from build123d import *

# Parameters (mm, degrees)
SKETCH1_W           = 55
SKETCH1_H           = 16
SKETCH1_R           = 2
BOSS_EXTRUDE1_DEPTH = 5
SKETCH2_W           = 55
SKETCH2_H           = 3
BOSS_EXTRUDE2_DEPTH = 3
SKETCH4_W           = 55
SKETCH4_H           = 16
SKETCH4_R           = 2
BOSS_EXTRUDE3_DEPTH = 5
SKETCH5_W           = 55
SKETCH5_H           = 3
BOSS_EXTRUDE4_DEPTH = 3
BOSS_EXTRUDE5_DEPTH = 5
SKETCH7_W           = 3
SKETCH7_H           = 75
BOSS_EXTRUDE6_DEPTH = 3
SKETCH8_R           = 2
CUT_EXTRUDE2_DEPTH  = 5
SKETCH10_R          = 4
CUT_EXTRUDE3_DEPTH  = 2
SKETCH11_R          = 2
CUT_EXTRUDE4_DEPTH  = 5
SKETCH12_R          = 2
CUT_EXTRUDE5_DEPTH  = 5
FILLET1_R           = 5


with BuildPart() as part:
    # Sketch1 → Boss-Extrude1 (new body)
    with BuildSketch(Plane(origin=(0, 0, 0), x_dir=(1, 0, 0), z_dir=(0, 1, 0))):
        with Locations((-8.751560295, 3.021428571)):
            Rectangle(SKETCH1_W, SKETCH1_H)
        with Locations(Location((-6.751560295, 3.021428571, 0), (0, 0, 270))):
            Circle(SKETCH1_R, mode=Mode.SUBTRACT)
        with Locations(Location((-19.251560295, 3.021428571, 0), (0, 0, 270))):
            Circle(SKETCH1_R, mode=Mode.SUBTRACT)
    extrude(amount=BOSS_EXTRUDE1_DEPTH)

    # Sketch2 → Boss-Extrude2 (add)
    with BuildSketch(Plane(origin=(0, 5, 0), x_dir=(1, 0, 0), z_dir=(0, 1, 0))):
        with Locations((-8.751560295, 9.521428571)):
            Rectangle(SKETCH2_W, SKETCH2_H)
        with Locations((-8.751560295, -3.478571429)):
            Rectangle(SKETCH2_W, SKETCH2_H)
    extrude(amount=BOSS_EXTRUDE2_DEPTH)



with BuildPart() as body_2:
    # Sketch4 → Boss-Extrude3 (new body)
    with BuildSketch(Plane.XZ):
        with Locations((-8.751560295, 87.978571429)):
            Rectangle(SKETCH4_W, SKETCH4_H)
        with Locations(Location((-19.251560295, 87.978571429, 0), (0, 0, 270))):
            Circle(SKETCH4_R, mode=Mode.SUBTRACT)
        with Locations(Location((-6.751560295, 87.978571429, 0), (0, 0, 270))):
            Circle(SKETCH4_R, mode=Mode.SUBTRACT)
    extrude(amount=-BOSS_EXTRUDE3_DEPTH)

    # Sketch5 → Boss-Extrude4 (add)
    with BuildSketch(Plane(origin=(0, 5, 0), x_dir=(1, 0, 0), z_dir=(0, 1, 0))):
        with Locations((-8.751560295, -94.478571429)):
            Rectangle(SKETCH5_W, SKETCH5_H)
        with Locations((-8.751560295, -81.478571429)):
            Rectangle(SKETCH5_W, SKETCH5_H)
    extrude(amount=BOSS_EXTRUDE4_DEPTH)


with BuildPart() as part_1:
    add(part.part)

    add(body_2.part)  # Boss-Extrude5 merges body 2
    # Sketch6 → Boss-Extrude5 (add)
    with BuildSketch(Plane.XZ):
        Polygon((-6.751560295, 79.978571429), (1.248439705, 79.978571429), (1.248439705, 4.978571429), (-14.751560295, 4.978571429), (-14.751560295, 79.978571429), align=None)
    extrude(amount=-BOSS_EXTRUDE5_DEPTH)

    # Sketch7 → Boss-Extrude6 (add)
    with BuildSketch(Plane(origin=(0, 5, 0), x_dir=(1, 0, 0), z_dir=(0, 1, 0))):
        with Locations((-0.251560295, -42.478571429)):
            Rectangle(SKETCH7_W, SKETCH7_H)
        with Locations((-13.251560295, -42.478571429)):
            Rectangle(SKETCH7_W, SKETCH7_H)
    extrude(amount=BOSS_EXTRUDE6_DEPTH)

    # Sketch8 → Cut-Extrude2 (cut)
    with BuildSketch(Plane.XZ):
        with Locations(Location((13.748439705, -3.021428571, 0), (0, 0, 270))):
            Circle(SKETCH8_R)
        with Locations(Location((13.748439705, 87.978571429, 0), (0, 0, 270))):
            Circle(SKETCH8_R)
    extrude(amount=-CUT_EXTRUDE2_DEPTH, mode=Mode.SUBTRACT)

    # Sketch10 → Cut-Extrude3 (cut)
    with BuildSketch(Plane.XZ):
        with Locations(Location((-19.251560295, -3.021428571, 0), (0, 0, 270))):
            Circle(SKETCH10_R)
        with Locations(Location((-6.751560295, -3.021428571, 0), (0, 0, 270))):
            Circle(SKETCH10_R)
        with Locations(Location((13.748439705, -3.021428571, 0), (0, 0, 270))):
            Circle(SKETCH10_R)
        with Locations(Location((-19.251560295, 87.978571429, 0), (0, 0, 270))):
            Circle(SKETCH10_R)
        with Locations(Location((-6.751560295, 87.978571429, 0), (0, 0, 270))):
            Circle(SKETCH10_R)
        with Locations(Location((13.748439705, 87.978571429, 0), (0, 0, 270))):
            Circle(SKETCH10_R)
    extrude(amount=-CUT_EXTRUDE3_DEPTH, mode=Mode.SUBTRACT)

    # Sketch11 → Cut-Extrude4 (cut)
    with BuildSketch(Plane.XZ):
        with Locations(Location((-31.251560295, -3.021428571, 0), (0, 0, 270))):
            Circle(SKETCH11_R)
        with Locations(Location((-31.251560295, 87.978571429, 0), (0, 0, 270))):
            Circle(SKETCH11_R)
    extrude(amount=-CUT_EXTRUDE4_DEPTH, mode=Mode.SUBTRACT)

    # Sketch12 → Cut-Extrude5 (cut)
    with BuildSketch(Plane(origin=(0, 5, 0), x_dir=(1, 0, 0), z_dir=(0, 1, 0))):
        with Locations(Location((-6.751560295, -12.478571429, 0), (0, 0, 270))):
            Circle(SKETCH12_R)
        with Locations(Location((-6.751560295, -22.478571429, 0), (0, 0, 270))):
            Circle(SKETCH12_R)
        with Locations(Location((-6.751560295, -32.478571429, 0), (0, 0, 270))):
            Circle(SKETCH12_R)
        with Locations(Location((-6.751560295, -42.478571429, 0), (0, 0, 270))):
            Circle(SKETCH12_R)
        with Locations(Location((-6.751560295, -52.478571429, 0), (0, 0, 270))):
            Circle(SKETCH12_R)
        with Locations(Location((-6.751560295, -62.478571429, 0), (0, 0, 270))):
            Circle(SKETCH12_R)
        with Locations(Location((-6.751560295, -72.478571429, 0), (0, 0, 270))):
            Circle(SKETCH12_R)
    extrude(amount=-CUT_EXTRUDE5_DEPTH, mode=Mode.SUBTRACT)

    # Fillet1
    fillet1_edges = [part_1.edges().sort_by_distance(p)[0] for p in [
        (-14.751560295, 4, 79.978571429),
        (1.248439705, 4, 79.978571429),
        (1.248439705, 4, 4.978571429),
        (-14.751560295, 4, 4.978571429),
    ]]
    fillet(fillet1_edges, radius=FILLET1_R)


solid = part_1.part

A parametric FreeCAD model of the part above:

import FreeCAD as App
import Part
import Sketcher

V = App.Vector
Q = App.Units.Quantity


def edges_at(feature, points):
    """Names of the edges that pass closest to the given points."""
    edges = feature.Shape.Edges
    near = lambda p: min(range(len(edges)), key=lambda i: edges[i].distToShape(Part.Vertex(*p))[0])
    return sorted({f"Edge{near(p) + 1}" for p in points})


def add_polygon(sketch, points):
    """Adds a closed chain of lines whose ends are joined by coincident constraints."""
    first, n = sketch.GeometryCount, len(points)
    for a, b in zip(points, points[1:] + points[:1]):
        sketch.addGeometry(Part.LineSegment(App.Vector(*a, 0), App.Vector(*b, 0)), False)
    for i in range(n):
        sketch.addConstraint(Sketcher.Constraint("Coincident", first + i, 2, first + (i + 1) % n, 1))

doc = App.newDocument("Part")
body = doc.addObject("PartDesign::Body", "Body")

# Sketch on XZ plane
sketch1 = body.newObject("Sketcher::SketchObject", "Sketch")
sketch1.AttachmentSupport = (doc.getObject("XZ_Plane"), [""])
sketch1.MapMode = "FlatFace"
add_polygon(sketch1, [(-36.25156, -11.021429), (-36.25156, 4.978571), (18.74844, 4.978571), (18.74844, -11.021429)])  # lines 0-3
sketch1.addGeometry(Part.Circle(V(-19.25156, -3.021429, 0), V(0, 0, 1), 2), False)  # 4
sketch1.addGeometry(Part.Circle(V(-6.75156, -3.021429, 0), V(0, 0, 1), 2), False)  # 5
sketch1.addConstraint([
    Sketcher.Constraint("Vertical", 0),
    Sketcher.Constraint("Horizontal", 1),
    Sketcher.Constraint("Vertical", 2),
    Sketcher.Constraint("Horizontal", 3),
    Sketcher.Constraint("Equal", 4, 5),
    Sketcher.Constraint("Horizontal", 4, 3, 5, 3),
    Sketcher.Constraint("Diameter", 4, Q("4 mm")),
    Sketcher.Constraint("DistanceX", 1, 1, 1, 2, Q("55 mm")),
    Sketcher.Constraint("DistanceY", 0, 1, 0, 2, Q("16 mm")),
    Sketcher.Constraint("DistanceX", 0, 2, 4, 3, Q("17 mm")),
    Sketcher.Constraint("DistanceY", 4, 3, 0, 2, Q("8 mm")),
    Sketcher.Constraint("DistanceX", 4, 3, 5, 3, Q("12.5 mm")),
    Sketcher.Constraint("DistanceX", 4, 3, -1, 1, Q("19.25156 mm")),
    Sketcher.Constraint("DistanceY", 4, 3, -1, 1, Q("3.021429 mm")),
])
pad1 = body.newObject("PartDesign::Pad", "Pad")
pad1.Profile = sketch1
pad1.Length = 5
pad1.Reversed = True

# Sketch on XZ plane
sketch2 = body.newObject("Sketcher::SketchObject", "Sketch001")
sketch2.AttachmentSupport = (doc.getObject("XZ_Plane"), [""])
sketch2.MapMode = "FlatFace"
sketch2.AttachmentOffset = App.Placement(V(0, 0, -5), App.Rotation())
add_polygon(sketch2, [(-36.25156, -11.021429), (-36.25156, -8.021429), (18.74844, -8.021429), (18.74844, -11.021429)])  # lines 0-3
add_polygon(sketch2, [(-36.25156, 1.978571), (-36.25156, 4.978571), (18.74844, 4.978571), (18.74844, 1.978571)])  # lines 4-7
sketch2.addConstraint([
    Sketcher.Constraint("Vertical", 0),
    Sketcher.Constraint("Horizontal", 1),
    Sketcher.Constraint("Vertical", 2),
    Sketcher.Constraint("Horizontal", 3),
    Sketcher.Constraint("Vertical", 4),
    Sketcher.Constraint("Horizontal", 5),
    Sketcher.Constraint("Vertical", 6),
    Sketcher.Constraint("Horizontal", 7),
    Sketcher.Constraint("Vertical", 3, 2, 4, 2),
    Sketcher.Constraint("Vertical", 2, 2, 5, 2),
    Sketcher.Constraint("Equal", 2, 4),
    Sketcher.Constraint("DistanceX", 1, 1, 1, 2, Q("55 mm")),
    Sketcher.Constraint("DistanceY", 0, 1, 0, 2, Q("3 mm")),
    Sketcher.Constraint("DistanceY", 0, 2, 4, 2, Q("13 mm")),
    Sketcher.Constraint("DistanceX", 0, 2, -1, 1, Q("36.25156 mm")),
    Sketcher.Constraint("DistanceY", 0, 2, -1, 1, Q("8.021429 mm")),
])
pad2 = body.newObject("PartDesign::Pad", "Pad001")
pad2.Profile = sketch2
pad2.Length = 3
pad2.Reversed = True
body2 = doc.addObject("PartDesign::Body", "Body001")

# Sketch on XZ plane
sketch3 = body2.newObject("Sketcher::SketchObject", "Sketch002")
sketch3.AttachmentSupport = (doc.getObject("XZ_Plane001"), [""])
sketch3.MapMode = "FlatFace"
add_polygon(sketch3, [(-36.25156, 95.978571), (-36.25156, 79.978571), (18.74844, 79.978571), (18.74844, 95.978571)])  # lines 0-3
sketch3.addGeometry(Part.Circle(V(-19.25156, 87.978571, 0), V(0, 0, 1), 2), False)  # 4
sketch3.addGeometry(Part.Circle(V(-6.75156, 87.978571, 0), V(0, 0, 1), 2), False)  # 5
sketch3.addConstraint([
    Sketcher.Constraint("Vertical", 0),
    Sketcher.Constraint("Horizontal", 1),
    Sketcher.Constraint("Vertical", 2),
    Sketcher.Constraint("Horizontal", 3),
    Sketcher.Constraint("Equal", 4, 5),
    Sketcher.Constraint("Horizontal", 4, 3, 5, 3),
    Sketcher.Constraint("Diameter", 4, Q("4 mm")),
    Sketcher.Constraint("DistanceX", 1, 1, 1, 2, Q("55 mm")),
    Sketcher.Constraint("DistanceY", 0, 2, 0, 1, Q("16 mm")),
    Sketcher.Constraint("DistanceX", 0, 2, 4, 3, Q("17 mm")),
    Sketcher.Constraint("DistanceY", 0, 2, 4, 3, Q("8 mm")),
    Sketcher.Constraint("DistanceX", 4, 3, 5, 3, Q("12.5 mm")),
    Sketcher.Constraint("DistanceX", 4, 3, -1, 1, Q("19.25156 mm")),
    Sketcher.Constraint("DistanceY", -1, 1, 4, 3, Q("87.978571 mm")),
])
pad3 = body2.newObject("PartDesign::Pad", "Pad002")
pad3.Profile = sketch3
pad3.Length = 5
pad3.Reversed = True

# Sketch on XZ plane
sketch4 = body2.newObject("Sketcher::SketchObject", "Sketch003")
sketch4.AttachmentSupport = (doc.getObject("XZ_Plane001"), [""])
sketch4.MapMode = "FlatFace"
sketch4.AttachmentOffset = App.Placement(V(0, 0, -5), App.Rotation())
add_polygon(sketch4, [(-36.25156, 92.978571), (-36.25156, 95.978571), (18.74844, 95.978571), (18.74844, 92.978571)])  # lines 0-3
add_polygon(sketch4, [(-36.25156, 79.978571), (-36.25156, 82.978571), (18.74844, 82.978571), (18.74844, 79.978571)])  # lines 4-7
sketch4.addConstraint([
    Sketcher.Constraint("Vertical", 0),
    Sketcher.Constraint("Horizontal", 1),
    Sketcher.Constraint("Vertical", 2),
    Sketcher.Constraint("Horizontal", 3),
    Sketcher.Constraint("Vertical", 4),
    Sketcher.Constraint("Horizontal", 5),
    Sketcher.Constraint("Vertical", 6),
    Sketcher.Constraint("Horizontal", 7),
    Sketcher.Constraint("Vertical", 3, 2, 4, 2),
    Sketcher.Constraint("Vertical", 2, 2, 5, 2),
    Sketcher.Constraint("Equal", 2, 4),
    Sketcher.Constraint("DistanceX", 1, 1, 1, 2, Q("55 mm")),
    Sketcher.Constraint("DistanceY", 0, 1, 0, 2, Q("3 mm")),
    Sketcher.Constraint("DistanceY", 4, 2, 3, 2, Q("10 mm")),
    Sketcher.Constraint("DistanceX", 0, 2, -1, 1, Q("36.25156 mm")),
    Sketcher.Constraint("DistanceY", -1, 1, 0, 2, Q("95.978571 mm")),
])
pad4 = body2.newObject("PartDesign::Pad", "Pad003")
pad4.Profile = sketch4
pad4.Length = 3
pad4.Reversed = True
body.AllowCompound = True
doc.recompute()

boolean = body.newObject("PartDesign::Boolean", "Boolean")
boolean.Type = "Fuse"
boolean.addObjects([body2])

# Sketch on XZ plane
sketch5 = body.newObject("Sketcher::SketchObject", "Sketch004")
sketch5.AttachmentSupport = (doc.getObject("XZ_Plane"), [""])
sketch5.MapMode = "FlatFace"
add_polygon(sketch5, [(1.24844, 79.978571), (-14.75156, 79.978571), (-14.75156, 4.978571), (1.24844, 4.978571)])  # lines 0-3
sketch5.addConstraint([
    Sketcher.Constraint("Horizontal", 0),
    Sketcher.Constraint("Vertical", 1),
    Sketcher.Constraint("Horizontal", 2),
    Sketcher.Constraint("Vertical", 3),
    Sketcher.Constraint("DistanceX", 0, 2, 0, 1, Q("16 mm")),
    Sketcher.Constraint("DistanceY", 1, 2, 1, 1, Q("75 mm")),
    Sketcher.Constraint("DistanceX", 0, 2, -1, 1, Q("14.75156 mm")),
    Sketcher.Constraint("DistanceY", -1, 1, 0, 2, Q("79.978571 mm")),
])
pad5 = body.newObject("PartDesign::Pad", "Pad004")
pad5.Profile = sketch5
pad5.Length = 5
pad5.Reversed = True

# Sketch on XZ plane
sketch6 = body.newObject("Sketcher::SketchObject", "Sketch005")
sketch6.AttachmentSupport = (doc.getObject("XZ_Plane"), [""])
sketch6.MapMode = "FlatFace"
sketch6.AttachmentOffset = App.Placement(V(0, 0, -5), App.Rotation())
add_polygon(sketch6, [(-1.75156, 4.978571), (-1.75156, 79.978571), (1.24844, 79.978571), (1.24844, 4.978571)])  # lines 0-3
add_polygon(sketch6, [(-14.75156, 4.978571), (-14.75156, 79.978571), (-11.75156, 79.978571), (-11.75156, 4.978571)])  # lines 4-7
sketch6.addConstraint([
    Sketcher.Constraint("Vertical", 0),
    Sketcher.Constraint("Horizontal", 1),
    Sketcher.Constraint("Vertical", 2),
    Sketcher.Constraint("Horizontal", 3),
    Sketcher.Constraint("Vertical", 4),
    Sketcher.Constraint("Horizontal", 5),
    Sketcher.Constraint("Vertical", 6),
    Sketcher.Constraint("Horizontal", 7),
    Sketcher.Constraint("Horizontal", 1, 2, 4, 2),
    Sketcher.Constraint("Horizontal", 3, 2, 6, 2),
    Sketcher.Constraint("Equal", 3, 5),
    Sketcher.Constraint("DistanceX", 1, 1, 1, 2, Q("3 mm")),
    Sketcher.Constraint("DistanceY", 0, 1, 0, 2, Q("75 mm")),
    Sketcher.Constraint("DistanceX", 4, 2, 0, 2, Q("13 mm")),
    Sketcher.Constraint("DistanceX", 0, 2, -1, 1, Q("1.75156 mm")),
    Sketcher.Constraint("DistanceY", -1, 1, 0, 2, Q("79.978571 mm")),
])
pad6 = body.newObject("PartDesign::Pad", "Pad005")
pad6.Profile = sketch6
pad6.Length = 3
pad6.Reversed = True

# Sketch on XZ plane
sketch7 = body.newObject("Sketcher::SketchObject", "Sketch006")
sketch7.AttachmentSupport = (doc.getObject("XZ_Plane"), [""])
sketch7.MapMode = "FlatFace"
sketch7.addGeometry([
    Part.Circle(V(13.74844, -3.021429, 0), V(0, 0, 1), 2),
    Part.Circle(V(13.74844, 87.978571, 0), V(0, 0, 1), 2),
], False)
sketch7.addConstraint([
    Sketcher.Constraint("Equal", 0, 1),
    Sketcher.Constraint("Vertical", 0, 3, 1, 3),
    Sketcher.Constraint("Diameter", 0, Q("4 mm")),
    Sketcher.Constraint("DistanceY", 0, 3, 1, 3, Q("91 mm")),
    Sketcher.Constraint("DistanceX", -1, 1, 0, 3, Q("13.74844 mm")),
    Sketcher.Constraint("DistanceY", 0, 3, -1, 1, Q("3.021429 mm")),
])
pocket1 = body.newObject("PartDesign::Pocket", "Pocket")
pocket1.Profile = sketch7
pocket1.Length = 5

# Sketch on XZ plane
sketch8 = body.newObject("Sketcher::SketchObject", "Sketch007")
sketch8.AttachmentSupport = (doc.getObject("XZ_Plane"), [""])
sketch8.MapMode = "FlatFace"
sketch8.addGeometry([
    Part.Circle(V(-19.25156, -3.021429, 0), V(0, 0, 1), 4),  # 0
    Part.Circle(V(-6.75156, -3.021429, 0), V(0, 0, 1), 4),  # 1
    Part.Circle(V(13.74844, -3.021429, 0), V(0, 0, 1), 4),  # 2
    Part.Circle(V(-19.25156, 87.978571, 0), V(0, 0, 1), 4),  # 3
    Part.Circle(V(-6.75156, 87.978571, 0), V(0, 0, 1), 4),  # 4
    Part.Circle(V(13.74844, 87.978571, 0), V(0, 0, 1), 4),  # 5
], False)
sketch8.addConstraint([
    Sketcher.Constraint("Equal", 0, 1),
    Sketcher.Constraint("Equal", 1, 2),
    Sketcher.Constraint("Equal", 2, 3),
    Sketcher.Constraint("Equal", 3, 4),
    Sketcher.Constraint("Equal", 4, 5),
    Sketcher.Constraint("Horizontal", 0, 3, 1, 3),
    Sketcher.Constraint("Horizontal", 1, 3, 2, 3),
    Sketcher.Constraint("Horizontal", 3, 3, 4, 3),
    Sketcher.Constraint("Horizontal", 4, 3, 5, 3),
    Sketcher.Constraint("Vertical", 0, 3, 3, 3),
    Sketcher.Constraint("Vertical", 1, 3, 4, 3),
    Sketcher.Constraint("Vertical", 2, 3, 5, 3),
    Sketcher.Constraint("Diameter", 0, Q("8 mm")),
    Sketcher.Constraint("DistanceX", 0, 3, 2, 3, Q("33 mm")),
    Sketcher.Constraint("DistanceY", 0, 3, 3, 3, Q("91 mm")),
    Sketcher.Constraint("DistanceX", 0, 3, 1, 3, Q("12.5 mm")),
    Sketcher.Constraint("DistanceX", 0, 3, -1, 1, Q("19.25156 mm")),
    Sketcher.Constraint("DistanceY", 0, 3, -1, 1, Q("3.021429 mm")),
])
pocket2 = body.newObject("PartDesign::Pocket", "Pocket001")
pocket2.Profile = sketch8
pocket2.Length = 2

# Sketch on XZ plane
sketch9 = body.newObject("Sketcher::SketchObject", "Sketch008")
sketch9.AttachmentSupport = (doc.getObject("XZ_Plane"), [""])
sketch9.MapMode = "FlatFace"
sketch9.addGeometry([
    Part.Circle(V(-31.25156, -3.021429, 0), V(0, 0, 1), 2),
    Part.Circle(V(-31.25156, 87.978571, 0), V(0, 0, 1), 2),
], False)
sketch9.addConstraint([
    Sketcher.Constraint("Equal", 0, 1),
    Sketcher.Constraint("Vertical", 0, 3, 1, 3),
    Sketcher.Constraint("Diameter", 0, Q("4 mm")),
    Sketcher.Constraint("DistanceY", 0, 3, 1, 3, Q("91 mm")),
    Sketcher.Constraint("DistanceX", 0, 3, -1, 1, Q("31.25156 mm")),
    Sketcher.Constraint("DistanceY", 0, 3, -1, 1, Q("3.021429 mm")),
])
pocket3 = body.newObject("PartDesign::Pocket", "Pocket002")
pocket3.Profile = sketch9
pocket3.Length = 5

# Sketch on XZ plane
sketch10 = body.newObject("Sketcher::SketchObject", "Sketch009")
sketch10.AttachmentSupport = (doc.getObject("XZ_Plane"), [""])
sketch10.MapMode = "FlatFace"
sketch10.AttachmentOffset = App.Placement(V(0, 0, -5), App.Rotation())
sketch10.addGeometry([
    Part.Circle(V(-6.75156, 12.478571, 0), V(0, 0, 1), 2),  # 0
    Part.Circle(V(-6.75156, 22.478571, 0), V(0, 0, 1), 2),  # 1
    Part.Circle(V(-6.75156, 32.478571, 0), V(0, 0, 1), 2),  # 2
    Part.Circle(V(-6.75156, 42.478571, 0), V(0, 0, 1), 2),  # 3
    Part.Circle(V(-6.75156, 52.478571, 0), V(0, 0, 1), 2),  # 4
    Part.Circle(V(-6.75156, 62.478571, 0), V(0, 0, 1), 2),  # 5
    Part.Circle(V(-6.75156, 72.478571, 0), V(0, 0, 1), 2),  # 6
], False)
sketch10.addConstraint([
    Sketcher.Constraint("Equal", 0, 1),
    Sketcher.Constraint("Equal", 1, 2),
    Sketcher.Constraint("Equal", 2, 3),
    Sketcher.Constraint("Equal", 3, 4),
    Sketcher.Constraint("Equal", 4, 5),
    Sketcher.Constraint("Equal", 5, 6),
    Sketcher.Constraint("Vertical", 0, 3, 1, 3),
    Sketcher.Constraint("Vertical", 1, 3, 2, 3),
    Sketcher.Constraint("Vertical", 2, 3, 3, 3),
    Sketcher.Constraint("Vertical", 3, 3, 4, 3),
    Sketcher.Constraint("Vertical", 4, 3, 5, 3),
    Sketcher.Constraint("Vertical", 5, 3, 6, 3),
    Sketcher.Constraint("Diameter", 0, Q("4 mm")),
    Sketcher.Constraint("DistanceY", 0, 3, 1, 3, Q("10 mm")),
    Sketcher.Constraint("DistanceY", 1, 3, 2, 3, Q("10 mm")),
    Sketcher.Constraint("DistanceY", 2, 3, 3, 3, Q("10 mm")),
    Sketcher.Constraint("DistanceY", 3, 3, 4, 3, Q("10 mm")),
    Sketcher.Constraint("DistanceY", 4, 3, 5, 3, Q("10 mm")),
    Sketcher.Constraint("DistanceY", 5, 3, 6, 3, Q("10 mm")),
    Sketcher.Constraint("DistanceX", 0, 3, -1, 1, Q("6.75156 mm")),
    Sketcher.Constraint("DistanceY", -1, 1, 0, 3, Q("12.478571 mm")),
])
pocket4 = body.newObject("PartDesign::Pocket", "Pocket003")
pocket4.Profile = sketch10
pocket4.Length = 5
pocket4.Reversed = True
doc.recompute()

fillet = body.newObject("PartDesign::Fillet", "Fillet")
fillet.Base = (pocket4, edges_at(pocket4, [
    (-14.752, 4, 79.979),
    (1.248, 4, 79.979),
    (1.248, 4, 4.979),
    (-14.752, 4, 4.979),
]))
fillet.Radius = 5

doc.recompute()
